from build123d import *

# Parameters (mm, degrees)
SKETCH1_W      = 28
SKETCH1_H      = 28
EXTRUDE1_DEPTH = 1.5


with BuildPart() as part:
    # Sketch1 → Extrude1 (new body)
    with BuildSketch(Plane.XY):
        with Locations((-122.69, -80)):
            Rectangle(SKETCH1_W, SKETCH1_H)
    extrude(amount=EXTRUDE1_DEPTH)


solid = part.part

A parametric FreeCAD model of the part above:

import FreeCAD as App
import Part
import Sketcher
from FreeCAD import Vector

doc = App.newDocument("Part")
body = doc.addObject("PartDesign::Body", "Body")

# Sketch on XY plane
sketch1 = body.newObject("Sketcher::SketchObject", "Sketch")
sketch1.AttachmentSupport = (doc.getObject("XY_Plane"), [""])
sketch1.MapMode = "FlatFace"
sketch1.addGeometry([
    Part.LineSegment(Vector(-137, -66, 0), Vector(-137, -94, 0)),
    Part.LineSegment(Vector(-137, -94, 0), Vector(-109, -94, 0)),
    Part.LineSegment(Vector(-109, -94, 0), Vector(-109, -66, 0)),
    Part.LineSegment(Vector(-109, -66, 0), Vector(-137, -66, 0)),
], False)
sketch1.addConstraint([
    Sketcher.Constraint("Coincident", 0, 2, 1, 1),
    Sketcher.Constraint("Coincident", 1, 2, 2, 1),
    Sketcher.Constraint("Coincident", 2, 2, 3, 1),
    Sketcher.Constraint("Coincident", 3, 2, 0, 1),
    Sketcher.Constraint("Vertical", 0),
    Sketcher.Constraint("Horizontal", 1),
    Sketcher.Constraint("Vertical", 2),
    Sketcher.Constraint("Horizontal", 3),
    Sketcher.Constraint("Equal", 3, 0),
    Sketcher.Constraint("DistanceX", 1, 1, 1, 2, 28.0),
    Sketcher.Constraint("DistanceY", 0, 2, -1, 1, 94.0),
    Sketcher.Constraint("DistanceX", 0, 2, -1, 1, 136.69),
])
pad1 = body.newObject("PartDesign::Pad", "Pad")
pad1.Profile = sketch1
pad1.Length = 1.5

doc.recompute()
